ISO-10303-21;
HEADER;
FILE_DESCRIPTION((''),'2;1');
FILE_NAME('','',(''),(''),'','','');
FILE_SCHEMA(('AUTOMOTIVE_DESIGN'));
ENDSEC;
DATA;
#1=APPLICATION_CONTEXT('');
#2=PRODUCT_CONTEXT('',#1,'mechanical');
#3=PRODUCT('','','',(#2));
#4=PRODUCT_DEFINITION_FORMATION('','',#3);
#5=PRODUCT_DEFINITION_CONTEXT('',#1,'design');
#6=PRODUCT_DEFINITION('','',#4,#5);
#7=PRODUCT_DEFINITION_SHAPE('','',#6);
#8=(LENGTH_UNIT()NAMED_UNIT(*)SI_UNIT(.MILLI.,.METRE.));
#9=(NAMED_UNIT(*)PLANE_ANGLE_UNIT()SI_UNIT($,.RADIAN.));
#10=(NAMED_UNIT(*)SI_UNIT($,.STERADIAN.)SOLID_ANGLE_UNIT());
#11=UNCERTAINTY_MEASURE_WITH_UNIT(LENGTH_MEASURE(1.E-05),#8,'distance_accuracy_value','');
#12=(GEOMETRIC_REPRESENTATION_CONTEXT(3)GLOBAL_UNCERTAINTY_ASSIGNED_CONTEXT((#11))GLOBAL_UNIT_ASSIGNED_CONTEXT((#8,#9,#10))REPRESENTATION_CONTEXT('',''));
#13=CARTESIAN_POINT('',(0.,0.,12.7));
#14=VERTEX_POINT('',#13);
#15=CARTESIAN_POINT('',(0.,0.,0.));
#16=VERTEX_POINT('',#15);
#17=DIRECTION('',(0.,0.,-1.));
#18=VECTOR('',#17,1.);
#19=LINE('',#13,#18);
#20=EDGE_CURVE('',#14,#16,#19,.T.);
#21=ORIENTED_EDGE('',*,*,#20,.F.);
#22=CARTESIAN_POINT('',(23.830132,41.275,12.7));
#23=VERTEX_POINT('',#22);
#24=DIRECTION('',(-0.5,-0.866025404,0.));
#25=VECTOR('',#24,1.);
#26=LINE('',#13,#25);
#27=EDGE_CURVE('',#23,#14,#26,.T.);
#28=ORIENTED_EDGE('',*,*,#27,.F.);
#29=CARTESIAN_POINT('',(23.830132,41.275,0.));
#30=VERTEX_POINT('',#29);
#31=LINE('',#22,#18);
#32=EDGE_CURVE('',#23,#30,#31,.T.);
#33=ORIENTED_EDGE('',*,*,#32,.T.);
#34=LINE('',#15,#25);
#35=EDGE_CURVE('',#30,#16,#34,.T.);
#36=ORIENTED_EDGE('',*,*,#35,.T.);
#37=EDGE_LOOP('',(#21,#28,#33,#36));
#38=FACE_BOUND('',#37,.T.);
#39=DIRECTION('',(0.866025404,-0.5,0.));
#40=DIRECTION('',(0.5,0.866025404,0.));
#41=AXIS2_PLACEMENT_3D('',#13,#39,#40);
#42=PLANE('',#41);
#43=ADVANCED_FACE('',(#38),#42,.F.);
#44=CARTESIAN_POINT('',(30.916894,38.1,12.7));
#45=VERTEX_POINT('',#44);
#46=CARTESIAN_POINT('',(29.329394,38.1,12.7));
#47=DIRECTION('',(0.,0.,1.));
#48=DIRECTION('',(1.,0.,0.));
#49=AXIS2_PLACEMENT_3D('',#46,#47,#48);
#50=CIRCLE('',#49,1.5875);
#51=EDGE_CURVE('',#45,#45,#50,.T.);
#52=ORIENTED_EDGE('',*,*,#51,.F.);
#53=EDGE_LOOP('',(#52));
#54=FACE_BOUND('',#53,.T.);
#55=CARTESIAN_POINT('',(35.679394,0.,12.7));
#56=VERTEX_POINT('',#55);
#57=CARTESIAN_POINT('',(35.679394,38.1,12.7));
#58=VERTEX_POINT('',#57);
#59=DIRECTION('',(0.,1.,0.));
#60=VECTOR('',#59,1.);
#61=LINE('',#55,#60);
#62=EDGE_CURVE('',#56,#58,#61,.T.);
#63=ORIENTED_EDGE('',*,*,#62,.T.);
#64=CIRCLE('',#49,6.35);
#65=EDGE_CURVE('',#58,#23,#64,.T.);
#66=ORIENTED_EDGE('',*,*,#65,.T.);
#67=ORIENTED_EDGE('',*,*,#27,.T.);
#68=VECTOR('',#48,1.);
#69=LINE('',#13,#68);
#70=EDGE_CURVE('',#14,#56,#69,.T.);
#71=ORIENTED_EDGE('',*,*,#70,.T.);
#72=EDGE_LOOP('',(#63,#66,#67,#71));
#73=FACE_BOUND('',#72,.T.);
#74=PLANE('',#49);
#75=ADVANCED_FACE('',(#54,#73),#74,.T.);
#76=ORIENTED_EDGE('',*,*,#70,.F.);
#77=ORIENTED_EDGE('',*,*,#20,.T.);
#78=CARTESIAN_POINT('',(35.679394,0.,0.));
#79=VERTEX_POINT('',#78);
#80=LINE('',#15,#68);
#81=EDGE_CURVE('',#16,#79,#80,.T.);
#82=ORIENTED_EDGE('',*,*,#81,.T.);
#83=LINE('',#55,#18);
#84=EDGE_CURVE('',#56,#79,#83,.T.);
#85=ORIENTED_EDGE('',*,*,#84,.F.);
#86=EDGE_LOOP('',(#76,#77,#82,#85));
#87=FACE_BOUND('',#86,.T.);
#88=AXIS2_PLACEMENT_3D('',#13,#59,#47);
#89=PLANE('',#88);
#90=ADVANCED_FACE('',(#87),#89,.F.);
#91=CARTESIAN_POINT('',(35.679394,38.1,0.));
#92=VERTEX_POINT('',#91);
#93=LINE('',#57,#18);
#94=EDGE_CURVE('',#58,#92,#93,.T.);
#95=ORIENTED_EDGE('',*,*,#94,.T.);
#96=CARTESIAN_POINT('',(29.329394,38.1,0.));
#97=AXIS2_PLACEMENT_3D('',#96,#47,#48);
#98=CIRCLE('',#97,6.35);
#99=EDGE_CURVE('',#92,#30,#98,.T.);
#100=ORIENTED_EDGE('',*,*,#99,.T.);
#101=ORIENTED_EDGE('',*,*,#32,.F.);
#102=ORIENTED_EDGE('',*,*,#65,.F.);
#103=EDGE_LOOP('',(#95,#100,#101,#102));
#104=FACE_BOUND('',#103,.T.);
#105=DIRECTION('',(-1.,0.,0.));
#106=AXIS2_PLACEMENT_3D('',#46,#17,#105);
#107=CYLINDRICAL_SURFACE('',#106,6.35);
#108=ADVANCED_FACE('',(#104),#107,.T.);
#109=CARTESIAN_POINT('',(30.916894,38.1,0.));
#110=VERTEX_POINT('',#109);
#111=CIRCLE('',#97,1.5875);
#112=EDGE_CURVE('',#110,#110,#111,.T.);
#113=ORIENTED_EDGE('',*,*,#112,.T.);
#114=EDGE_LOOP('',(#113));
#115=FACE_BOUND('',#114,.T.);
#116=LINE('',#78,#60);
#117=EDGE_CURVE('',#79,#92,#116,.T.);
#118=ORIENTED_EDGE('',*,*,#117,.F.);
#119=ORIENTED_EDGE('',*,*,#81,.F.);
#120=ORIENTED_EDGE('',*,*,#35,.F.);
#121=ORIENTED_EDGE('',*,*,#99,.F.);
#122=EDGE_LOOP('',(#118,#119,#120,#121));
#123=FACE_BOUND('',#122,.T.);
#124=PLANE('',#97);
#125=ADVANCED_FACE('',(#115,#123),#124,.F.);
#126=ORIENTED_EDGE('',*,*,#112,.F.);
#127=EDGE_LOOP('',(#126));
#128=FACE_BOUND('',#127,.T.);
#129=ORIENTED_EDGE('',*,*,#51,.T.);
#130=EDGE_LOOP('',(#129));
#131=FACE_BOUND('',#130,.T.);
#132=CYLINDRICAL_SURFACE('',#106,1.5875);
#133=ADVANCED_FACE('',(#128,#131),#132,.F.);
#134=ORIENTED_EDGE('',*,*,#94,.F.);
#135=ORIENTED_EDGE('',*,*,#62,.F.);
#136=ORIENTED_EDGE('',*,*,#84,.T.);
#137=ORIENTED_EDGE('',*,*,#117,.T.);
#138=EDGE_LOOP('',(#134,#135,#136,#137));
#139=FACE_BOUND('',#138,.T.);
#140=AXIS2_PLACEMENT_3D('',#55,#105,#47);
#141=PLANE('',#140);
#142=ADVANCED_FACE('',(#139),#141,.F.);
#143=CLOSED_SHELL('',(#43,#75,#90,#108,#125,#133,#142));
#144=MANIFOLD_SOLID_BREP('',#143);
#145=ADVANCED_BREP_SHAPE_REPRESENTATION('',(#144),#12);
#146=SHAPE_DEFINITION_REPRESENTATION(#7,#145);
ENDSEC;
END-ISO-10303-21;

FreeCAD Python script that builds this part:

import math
import FreeCAD as App
import Part
import Sketcher

V = App.Vector
Q = App.Units.Quantity

doc = App.newDocument("Part")
params = doc.addObject("Spreadsheet::Sheet", "Params")
for row, (alias, value) in enumerate([
    ("sketch1_radius", "0.25 in"),
    ("sketch1_diameter", "0.125 in"),
    ("sketch1_height", "1.5 in"),
    ("pad1_length", "0.5 in"),
], start=1):
    params.set(f"A{row}", alias)
    params.set(f"B{row}", "=" + value)
    params.setAlias(f"B{row}", alias)

body = doc.addObject("PartDesign::Body", "Body")

# Sketch on XY plane
sketch1 = body.newObject("Sketcher::SketchObject", "Sketch")
sketch1.AttachmentSupport = (doc.getObject("XY_Plane"), [""])
sketch1.MapMode = "FlatFace"
sketch1.addGeometry(Part.LineSegment(V(23.8, 41.3, 0), V(0, 0, 0)), False)
sketch1.addGeometry(Part.LineSegment(V(0, 0, 0), V(35.7, 0, 0)), False)
sketch1.addGeometry(Part.LineSegment(V(35.7, 0, 0), V(35.7, 38.1, 0)), False)
sketch1.addGeometry(Part.ArcOfCircle(Part.Circle(V(29.3, 38.1, 0), V(0, 0, 1), 6.3), math.radians(0), math.radians(150)), False)
sketch1.addGeometry(Part.Circle(V(29.3, 38.1, 0), V(0, 0, 1), 1.6), False)
sketch1.addConstraint(Sketcher.Constraint("Coincident", 0, 2, 1, 1))
sketch1.addConstraint(Sketcher.Constraint("Coincident", 1, 2, 2, 1))
sketch1.addConstraint(Sketcher.Constraint("Tangent", 2, 2, 3, 1))
sketch1.addConstraint(Sketcher.Constraint("Tangent", 3, 2, 0, 1))
sketch1.addConstraint(Sketcher.Constraint("Horizontal", 1))
sketch1.addConstraint(Sketcher.Constraint("Vertical", 2))
sketch1.addConstraint(Sketcher.Constraint("Coincident", 0, 2, -1, 1))
sketch1.addConstraint(Sketcher.Constraint("Coincident", 4, 3, 3, 3))
sketch1.addConstraint(Sketcher.Constraint("Radius", 3, Q("0.25 in")))
sketch1.addConstraint(Sketcher.Constraint("Diameter", 4, Q("0.125 in")))
sketch1.addConstraint(Sketcher.Constraint("DistanceY", 2, 1, 2, 2, Q("1.5 in")))
sketch1.addConstraint(Sketcher.Constraint("Angle", 0, Q("-120 deg")))
sketch1.setExpression("Constraints[8]", "Params.sketch1_radius")
sketch1.setExpression("Constraints[9]", "Params.sketch1_diameter")
sketch1.setExpression("Constraints[10]", "Params.sketch1_height")
pad1 = body.newObject("PartDesign::Pad", "Pad")
pad1.Profile = sketch1
pad1.setExpression("Length", "Params.pad1_length")

doc.recompute()
